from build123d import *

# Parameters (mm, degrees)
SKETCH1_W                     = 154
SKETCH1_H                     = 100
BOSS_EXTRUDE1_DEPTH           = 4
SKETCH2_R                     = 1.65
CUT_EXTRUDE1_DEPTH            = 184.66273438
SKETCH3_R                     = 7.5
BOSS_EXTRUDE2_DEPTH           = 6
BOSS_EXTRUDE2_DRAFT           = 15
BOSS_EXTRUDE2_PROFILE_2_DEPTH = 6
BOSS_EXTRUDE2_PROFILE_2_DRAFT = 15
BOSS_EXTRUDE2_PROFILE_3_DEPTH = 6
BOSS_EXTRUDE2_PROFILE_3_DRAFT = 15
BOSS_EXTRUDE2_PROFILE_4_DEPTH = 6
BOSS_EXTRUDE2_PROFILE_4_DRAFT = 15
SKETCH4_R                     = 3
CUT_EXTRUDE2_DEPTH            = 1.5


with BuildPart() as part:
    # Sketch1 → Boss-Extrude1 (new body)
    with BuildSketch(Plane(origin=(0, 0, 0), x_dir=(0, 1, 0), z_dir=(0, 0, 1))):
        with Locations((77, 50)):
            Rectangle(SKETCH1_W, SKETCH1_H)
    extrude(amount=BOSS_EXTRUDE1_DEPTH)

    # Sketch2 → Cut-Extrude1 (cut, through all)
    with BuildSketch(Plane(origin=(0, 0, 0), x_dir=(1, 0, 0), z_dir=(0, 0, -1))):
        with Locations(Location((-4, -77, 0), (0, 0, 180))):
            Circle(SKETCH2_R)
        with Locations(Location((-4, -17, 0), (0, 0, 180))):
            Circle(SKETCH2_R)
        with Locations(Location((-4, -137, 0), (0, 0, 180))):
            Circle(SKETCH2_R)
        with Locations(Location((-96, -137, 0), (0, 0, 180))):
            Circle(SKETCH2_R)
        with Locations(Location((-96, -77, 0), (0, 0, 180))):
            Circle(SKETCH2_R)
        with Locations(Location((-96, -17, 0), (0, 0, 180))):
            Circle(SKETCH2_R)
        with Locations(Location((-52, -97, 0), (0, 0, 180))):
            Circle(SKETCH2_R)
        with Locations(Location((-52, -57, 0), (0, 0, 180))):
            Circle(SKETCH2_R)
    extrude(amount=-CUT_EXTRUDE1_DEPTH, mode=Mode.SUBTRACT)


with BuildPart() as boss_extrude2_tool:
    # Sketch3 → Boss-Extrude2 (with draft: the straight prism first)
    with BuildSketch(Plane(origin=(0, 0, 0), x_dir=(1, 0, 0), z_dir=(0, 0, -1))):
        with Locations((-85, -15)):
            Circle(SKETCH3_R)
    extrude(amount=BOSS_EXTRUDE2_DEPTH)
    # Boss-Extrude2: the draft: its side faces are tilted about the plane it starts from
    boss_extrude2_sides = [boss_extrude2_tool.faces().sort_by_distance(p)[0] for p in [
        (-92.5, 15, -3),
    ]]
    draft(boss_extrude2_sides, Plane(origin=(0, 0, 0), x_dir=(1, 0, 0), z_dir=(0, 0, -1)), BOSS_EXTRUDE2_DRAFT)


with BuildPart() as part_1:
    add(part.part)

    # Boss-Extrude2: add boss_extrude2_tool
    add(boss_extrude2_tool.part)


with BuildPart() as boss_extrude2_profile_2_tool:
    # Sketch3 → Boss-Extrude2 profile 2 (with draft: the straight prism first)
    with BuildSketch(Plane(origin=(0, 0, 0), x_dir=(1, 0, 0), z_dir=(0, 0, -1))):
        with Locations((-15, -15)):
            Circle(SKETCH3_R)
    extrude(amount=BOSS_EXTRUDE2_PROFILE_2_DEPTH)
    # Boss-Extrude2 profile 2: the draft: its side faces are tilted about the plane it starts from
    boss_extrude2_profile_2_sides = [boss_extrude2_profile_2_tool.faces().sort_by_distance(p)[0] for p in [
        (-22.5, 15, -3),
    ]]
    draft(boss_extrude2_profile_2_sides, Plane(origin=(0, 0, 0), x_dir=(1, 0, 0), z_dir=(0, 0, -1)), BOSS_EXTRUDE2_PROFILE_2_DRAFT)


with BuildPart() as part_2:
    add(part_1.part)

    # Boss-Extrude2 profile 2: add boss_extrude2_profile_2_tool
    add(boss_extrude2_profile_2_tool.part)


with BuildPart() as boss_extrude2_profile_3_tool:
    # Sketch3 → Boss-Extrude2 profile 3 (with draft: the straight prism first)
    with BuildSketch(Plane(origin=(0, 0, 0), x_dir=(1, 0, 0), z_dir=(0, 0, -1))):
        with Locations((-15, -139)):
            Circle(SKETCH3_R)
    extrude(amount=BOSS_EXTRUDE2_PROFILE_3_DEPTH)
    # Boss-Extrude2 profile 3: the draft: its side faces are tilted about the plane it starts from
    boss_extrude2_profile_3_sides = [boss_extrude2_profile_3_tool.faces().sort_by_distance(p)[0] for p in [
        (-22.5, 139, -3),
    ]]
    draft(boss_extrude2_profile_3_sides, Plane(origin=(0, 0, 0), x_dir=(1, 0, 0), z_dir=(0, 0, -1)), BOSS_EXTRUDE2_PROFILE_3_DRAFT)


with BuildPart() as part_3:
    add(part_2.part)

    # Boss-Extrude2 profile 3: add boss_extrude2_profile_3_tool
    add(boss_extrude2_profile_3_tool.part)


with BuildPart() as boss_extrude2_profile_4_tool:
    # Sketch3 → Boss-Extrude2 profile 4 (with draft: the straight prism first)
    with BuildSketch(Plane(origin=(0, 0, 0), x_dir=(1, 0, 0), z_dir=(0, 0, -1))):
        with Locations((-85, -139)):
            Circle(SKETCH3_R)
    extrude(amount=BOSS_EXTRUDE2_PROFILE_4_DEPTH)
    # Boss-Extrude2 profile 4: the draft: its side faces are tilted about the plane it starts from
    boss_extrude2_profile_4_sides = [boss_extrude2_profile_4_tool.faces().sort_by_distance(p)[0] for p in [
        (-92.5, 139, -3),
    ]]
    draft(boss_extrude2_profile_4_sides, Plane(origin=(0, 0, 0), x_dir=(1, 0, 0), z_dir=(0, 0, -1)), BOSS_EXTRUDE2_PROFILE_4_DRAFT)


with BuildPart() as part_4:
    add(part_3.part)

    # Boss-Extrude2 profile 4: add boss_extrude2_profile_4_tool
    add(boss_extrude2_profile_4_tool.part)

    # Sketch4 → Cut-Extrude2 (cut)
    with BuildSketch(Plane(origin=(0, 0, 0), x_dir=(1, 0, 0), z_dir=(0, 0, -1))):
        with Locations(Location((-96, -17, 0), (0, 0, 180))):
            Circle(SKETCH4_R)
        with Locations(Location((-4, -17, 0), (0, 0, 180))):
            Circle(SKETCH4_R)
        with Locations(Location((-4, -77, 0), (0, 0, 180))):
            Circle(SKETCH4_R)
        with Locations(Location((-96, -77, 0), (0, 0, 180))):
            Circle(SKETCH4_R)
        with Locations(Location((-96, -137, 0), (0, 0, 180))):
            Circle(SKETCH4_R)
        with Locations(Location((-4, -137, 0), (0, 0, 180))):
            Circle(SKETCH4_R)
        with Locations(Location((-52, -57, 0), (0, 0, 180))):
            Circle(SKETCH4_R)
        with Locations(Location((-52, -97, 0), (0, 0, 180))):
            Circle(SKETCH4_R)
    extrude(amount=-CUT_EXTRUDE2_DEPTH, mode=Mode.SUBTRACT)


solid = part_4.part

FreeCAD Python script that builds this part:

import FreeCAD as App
import Part
import Sketcher
Q = App.Units.Quantity


def faces_at(feature, points):
    """Names of the faces that lie closest to the given points."""
    faces = feature.Shape.Faces
    near = lambda p: min(range(len(faces)), key=lambda i: faces[i].distToShape(Part.Vertex(*p))[0])
    return sorted({f"Face{near(p) + 1}" for p in points})


def add_polygon(sketch, points):
    """Adds a closed chain of lines whose ends are joined by coincident constraints."""
    first, n = sketch.GeometryCount, len(points)
    for a, b in zip(points, points[1:] + points[:1]):
        sketch.addGeometry(Part.LineSegment(App.Vector(*a, 0), App.Vector(*b, 0)), False)
    for i in range(n):
        sketch.addConstraint(Sketcher.Constraint("Coincident", first + i, 2, first + (i + 1) % n, 1))

doc = App.newDocument("Part")
body = doc.addObject("PartDesign::Body", "Body")

sketch1 = body.newObject("Sketcher::SketchObject", "Sketch")
sketch1.AttachmentSupport = (doc.getObject("XY_Plane"), [""])
sketch1.MapMode = "FlatFace"
add_polygon(sketch1, [(-100, 0), (0, 0), (0, 154), (-100, 154)])
sketch1.addConstraint(Sketcher.Constraint("Horizontal", 0))
sketch1.addConstraint(Sketcher.Constraint("Vertical", 1))
sketch1.addConstraint(Sketcher.Constraint("Horizontal", 2))
sketch1.addConstraint(Sketcher.Constraint("Vertical", 3))
sketch1.addConstraint(Sketcher.Constraint("Coincident", 0, 2, -1, 1))
sketch1.addConstraint(Sketcher.Constraint("DistanceX", 0, 1, 0, 2, Q("100 mm")))
sketch1.addConstraint(Sketcher.Constraint("DistanceY", 1, 1, 1, 2, Q("154 mm")))
pad1 = body.newObject("PartDesign::Pad", "Pad")
pad1.Profile = sketch1
pad1.Length = 4

sketch2 = body.newObject("Sketcher::SketchObject", "Sketch001")
sketch2.AttachmentSupport = (doc.getObject("XY_Plane"), [""])
sketch2.MapMode = "FlatFace"
sketch2.addGeometry(Part.Circle(App.Vector(-4, 77, 0), App.Vector(0, 0, 1), 1.6), False)
sketch2.addGeometry(Part.Circle(App.Vector(-4, 17, 0), App.Vector(0, 0, 1), 1.6), False)
sketch2.addGeometry(Part.Circle(App.Vector(-4, 137, 0), App.Vector(0, 0, 1), 1.6), False)
sketch2.addGeometry(Part.Circle(App.Vector(-96, 137, 0), App.Vector(0, 0, 1), 1.6), False)
sketch2.addGeometry(Part.Circle(App.Vector(-96, 77, 0), App.Vector(0, 0, 1), 1.6), False)
sketch2.addGeometry(Part.Circle(App.Vector(-96, 17, 0), App.Vector(0, 0, 1), 1.6), False)
sketch2.addGeometry(Part.Circle(App.Vector(-52, 97, 0), App.Vector(0, 0, 1), 1.6), False)
sketch2.addGeometry(Part.Circle(App.Vector(-52, 57, 0), App.Vector(0, 0, 1), 1.6), False)
sketch2.addConstraint(Sketcher.Constraint("Equal", 0, 1))
sketch2.addConstraint(Sketcher.Constraint("Equal", 1, 2))
sketch2.addConstraint(Sketcher.Constraint("Equal", 2, 3))
sketch2.addConstraint(Sketcher.Constraint("Equal", 3, 4))
sketch2.addConstraint(Sketcher.Constraint("Equal", 4, 5))
sketch2.addConstraint(Sketcher.Constraint("Equal", 5, 6))
sketch2.addConstraint(Sketcher.Constraint("Equal", 6, 7))
sketch2.addConstraint(Sketcher.Constraint("Horizontal", 2, 3, 3, 3))
sketch2.addConstraint(Sketcher.Constraint("Horizontal", 0, 3, 4, 3))
sketch2.addConstraint(Sketcher.Constraint("Horizontal", 1, 3, 5, 3))
sketch2.addConstraint(Sketcher.Constraint("Vertical", 0, 3, 1, 3))
sketch2.addConstraint(Sketcher.Constraint("Vertical", 1, 3, 2, 3))
sketch2.addConstraint(Sketcher.Constraint("Vertical", 3, 3, 4, 3))
sketch2.addConstraint(Sketcher.Constraint("Vertical", 4, 3, 5, 3))
sketch2.addConstraint(Sketcher.Constraint("Vertical", 6, 3, 7, 3))
sketch2.addConstraint(Sketcher.Constraint("Diameter", 0, Q("3.3 mm")))
sketch2.addConstraint(Sketcher.Constraint("DistanceX", 0, 3, -1, 1, Q("4 mm")))
sketch2.addConstraint(Sketcher.Constraint("DistanceY", -1, 1, 0, 3, Q("77 mm")))
sketch2.addConstraint(Sketcher.Constraint("DistanceY", -1, 1, 1, 3, Q("17 mm")))
sketch2.addConstraint(Sketcher.Constraint("DistanceY", -1, 1, 2, 3, Q("137 mm")))
sketch2.addConstraint(Sketcher.Constraint("DistanceX", 3, 3, -1, 1, Q("96 mm")))
sketch2.addConstraint(Sketcher.Constraint("DistanceX", 6, 3, -1, 1, Q("52 mm")))
sketch2.addConstraint(Sketcher.Constraint("DistanceY", -1, 1, 6, 3, Q("97 mm")))
sketch2.addConstraint(Sketcher.Constraint("DistanceY", -1, 1, 7, 3, Q("57 mm")))
pocket1 = body.newObject("PartDesign::Pocket", "Pocket")
pocket1.Profile = sketch2
pocket1.Type = "ThroughAll"
pocket1.Reversed = True
body2 = doc.addObject("PartDesign::Body", "Body001")

sketch3 = body2.newObject("Sketcher::SketchObject", "Sketch002")
sketch3.AttachmentSupport = (doc.getObject("XY_Plane001"), [""])
sketch3.MapMode = "FlatFace"
sketch3.addGeometry(Part.Circle(App.Vector(-85, 15, 0), App.Vector(0, 0, 1), 8), False)
sketch3.addConstraint(Sketcher.Constraint("Diameter", 0, Q("15 mm")))
sketch3.addConstraint(Sketcher.Constraint("DistanceX", 0, 3, -1, 1, Q("85 mm")))
sketch3.addConstraint(Sketcher.Constraint("DistanceY", -1, 1, 0, 3, Q("15 mm")))
pad2 = body2.newObject("PartDesign::Pad", "Pad001")
pad2.Profile = sketch3
pad2.Length = 6
pad2.Reversed = True
doc.recompute()

draft = body2.newObject("PartDesign::Draft", "Draft")
draft.Base = (pad2, faces_at(pad2, [(-92.5, 15, -3)]))
draft.NeutralPlane = (doc.getObject("XY_Plane001"), [""])
draft.Angle = 15
draft.Reversed = True
doc.recompute()

boolean = body.newObject("PartDesign::Boolean", "Boolean")
boolean.Type = "Fuse"
boolean.addObjects([body2])
body3 = doc.addObject("PartDesign::Body", "Body002")

sketch4 = body3.newObject("Sketcher::SketchObject", "Sketch003")
sketch4.AttachmentSupport = (doc.getObject("XY_Plane002"), [""])
sketch4.MapMode = "FlatFace"
sketch4.addGeometry(Part.Circle(App.Vector(-15, 15, 0), App.Vector(0, 0, 1), 8), False)
sketch4.addConstraint(Sketcher.Constraint("Diameter", 0, Q("15 mm")))
sketch4.addConstraint(Sketcher.Constraint("DistanceX", 0, 3, -1, 1, Q("15 mm")))
sketch4.addConstraint(Sketcher.Constraint("DistanceY", -1, 1, 0, 3, Q("15 mm")))
pad3 = body3.newObject("PartDesign::Pad", "Pad002")
pad3.Profile = sketch4
pad3.Length = 6
pad3.Reversed = True
doc.recompute()

draft2 = body3.newObject("PartDesign::Draft", "Draft001")
draft2.Base = (pad3, faces_at(pad3, [(-22.5, 15, -3)]))
draft2.NeutralPlane = (doc.getObject("XY_Plane002"), [""])
draft2.Angle = 15
draft2.Reversed = True
doc.recompute()

boolean2 = body.newObject("PartDesign::Boolean", "Boolean001")
boolean2.Type = "Fuse"
boolean2.addObjects([body3])
body4 = doc.addObject("PartDesign::Body", "Body003")

sketch5 = body4.newObject("Sketcher::SketchObject", "Sketch004")
sketch5.AttachmentSupport = (doc.getObject("XY_Plane003"), [""])
sketch5.MapMode = "FlatFace"
sketch5.addGeometry(Part.Circle(App.Vector(-15, 139, 0), App.Vector(0, 0, 1), 8), False)
sketch5.addConstraint(Sketcher.Constraint("Diameter", 0, Q("15 mm")))
sketch5.addConstraint(Sketcher.Constraint("DistanceX", 0, 3, -1, 1, Q("15 mm")))
sketch5.addConstraint(Sketcher.Constraint("DistanceY", -1, 1, 0, 3, Q("139 mm")))
pad4 = body4.newObject("PartDesign::Pad", "Pad003")
pad4.Profile = sketch5
pad4.Length = 6
pad4.Reversed = True
doc.recompute()

draft3 = body4.newObject("PartDesign::Draft", "Draft002")
draft3.Base = (pad4, faces_at(pad4, [(-22.5, 139, -3)]))
draft3.NeutralPlane = (doc.getObject("XY_Plane003"), [""])
draft3.Angle = 15
draft3.Reversed = True
doc.recompute()

boolean3 = body.newObject("PartDesign::Boolean", "Boolean002")
boolean3.Type = "Fuse"
boolean3.addObjects([body4])
body5 = doc.addObject("PartDesign::Body", "Body004")

sketch6 = body5.newObject("Sketcher::SketchObject", "Sketch005")
sketch6.AttachmentSupport = (doc.getObject("XY_Plane004"), [""])
sketch6.MapMode = "FlatFace"
sketch6.addGeometry(Part.Circle(App.Vector(-85, 139, 0), App.Vector(0, 0, 1), 8), False)
sketch6.addConstraint(Sketcher.Constraint("Diameter", 0, Q("15 mm")))
sketch6.addConstraint(Sketcher.Constraint("DistanceX", 0, 3, -1, 1, Q("85 mm")))
sketch6.addConstraint(Sketcher.Constraint("DistanceY", -1, 1, 0, 3, Q("139 mm")))
pad5 = body5.newObject("PartDesign::Pad", "Pad004")
pad5.Profile = sketch6
pad5.Length = 6
pad5.Reversed = True
doc.recompute()

draft4 = body5.newObject("PartDesign::Draft", "Draft003")
draft4.Base = (pad5, faces_at(pad5, [(-92.5, 139, -3)]))
draft4.NeutralPlane = (doc.getObject("XY_Plane004"), [""])
draft4.Angle = 15
draft4.Reversed = True
doc.recompute()

boolean4 = body.newObject("PartDesign::Boolean", "Boolean003")
boolean4.Type = "Fuse"
boolean4.addObjects([body5])

sketch7 = body.newObject("Sketcher::SketchObject", "Sketch006")
sketch7.AttachmentSupport = (doc.getObject("XY_Plane"), [""])
sketch7.MapMode = "FlatFace"
sketch7.addGeometry(Part.Circle(App.Vector(-96, 17, 0), App.Vector(0, 0, 1), 3), False)
sketch7.addGeometry(Part.Circle(App.Vector(-4, 17, 0), App.Vector(0, 0, 1), 3), False)
sketch7.addGeometry(Part.Circle(App.Vector(-4, 77, 0), App.Vector(0, 0, 1), 3), False)
sketch7.addGeometry(Part.Circle(App.Vector(-96, 77, 0), App.Vector(0, 0, 1), 3), False)
sketch7.addGeometry(Part.Circle(App.Vector(-96, 137, 0), App.Vector(0, 0, 1), 3), False)
sketch7.addGeometry(Part.Circle(App.Vector(-4, 137, 0), App.Vector(0, 0, 1), 3), False)
sketch7.addGeometry(Part.Circle(App.Vector(-52, 57, 0), App.Vector(0, 0, 1), 3), False)
sketch7.addGeometry(Part.Circle(App.Vector(-52, 97, 0), App.Vector(0, 0, 1), 3), False)
sketch7.addConstraint(Sketcher.Constraint("Equal", 0, 1))
sketch7.addConstraint(Sketcher.Constraint("Equal", 1, 2))
sketch7.addConstraint(Sketcher.Constraint("Equal", 2, 3))
sketch7.addConstraint(Sketcher.Constraint("Equal", 3, 4))
sketch7.addConstraint(Sketcher.Constraint("Equal", 4, 5))
sketch7.addConstraint(Sketcher.Constraint("Equal", 5, 6))
sketch7.addConstraint(Sketcher.Constraint("Equal", 6, 7))
sketch7.addConstraint(Sketcher.Constraint("Horizontal", 0, 3, 1, 3))
sketch7.addConstraint(Sketcher.Constraint("Horizontal", 2, 3, 3, 3))
sketch7.addConstraint(Sketcher.Constraint("Horizontal", 4, 3, 5, 3))
sketch7.addConstraint(Sketcher.Constraint("Vertical", 1, 3, 2, 3))
sketch7.addConstraint(Sketcher.Constraint("Vertical", 0, 3, 3, 3))
sketch7.addConstraint(Sketcher.Constraint("Vertical", 3, 3, 4, 3))
sketch7.addConstraint(Sketcher.Constraint("Vertical", 2, 3, 5, 3))
sketch7.addConstraint(Sketcher.Constraint("Vertical", 6, 3, 7, 3))
sketch7.addConstraint(Sketcher.Constraint("Diameter", 0, Q("6 mm")))
sketch7.addConstraint(Sketcher.Constraint("DistanceX", 0, 3, -1, 1, Q("96 mm")))
sketch7.addConstraint(Sketcher.Constraint("DistanceY", -1, 1, 0, 3, Q("17 mm")))
sketch7.addConstraint(Sketcher.Constraint("DistanceX", 1, 3, -1, 1, Q("4 mm")))
sketch7.addConstraint(Sketcher.Constraint("DistanceY", -1, 1, 2, 3, Q("77 mm")))
sketch7.addConstraint(Sketcher.Constraint("DistanceY", -1, 1, 4, 3, Q("137 mm")))
sketch7.addConstraint(Sketcher.Constraint("DistanceX", 6, 3, -1, 1, Q("52 mm")))
sketch7.addConstraint(Sketcher.Constraint("DistanceY", -1, 1, 6, 3, Q("57 mm")))
sketch7.addConstraint(Sketcher.Constraint("DistanceY", -1, 1, 7, 3, Q("97 mm")))
pocket2 = body.newObject("PartDesign::Pocket", "Pocket001")
pocket2.Profile = sketch7
pocket2.Length = 1.5
pocket2.Reversed = True

doc.recompute()
